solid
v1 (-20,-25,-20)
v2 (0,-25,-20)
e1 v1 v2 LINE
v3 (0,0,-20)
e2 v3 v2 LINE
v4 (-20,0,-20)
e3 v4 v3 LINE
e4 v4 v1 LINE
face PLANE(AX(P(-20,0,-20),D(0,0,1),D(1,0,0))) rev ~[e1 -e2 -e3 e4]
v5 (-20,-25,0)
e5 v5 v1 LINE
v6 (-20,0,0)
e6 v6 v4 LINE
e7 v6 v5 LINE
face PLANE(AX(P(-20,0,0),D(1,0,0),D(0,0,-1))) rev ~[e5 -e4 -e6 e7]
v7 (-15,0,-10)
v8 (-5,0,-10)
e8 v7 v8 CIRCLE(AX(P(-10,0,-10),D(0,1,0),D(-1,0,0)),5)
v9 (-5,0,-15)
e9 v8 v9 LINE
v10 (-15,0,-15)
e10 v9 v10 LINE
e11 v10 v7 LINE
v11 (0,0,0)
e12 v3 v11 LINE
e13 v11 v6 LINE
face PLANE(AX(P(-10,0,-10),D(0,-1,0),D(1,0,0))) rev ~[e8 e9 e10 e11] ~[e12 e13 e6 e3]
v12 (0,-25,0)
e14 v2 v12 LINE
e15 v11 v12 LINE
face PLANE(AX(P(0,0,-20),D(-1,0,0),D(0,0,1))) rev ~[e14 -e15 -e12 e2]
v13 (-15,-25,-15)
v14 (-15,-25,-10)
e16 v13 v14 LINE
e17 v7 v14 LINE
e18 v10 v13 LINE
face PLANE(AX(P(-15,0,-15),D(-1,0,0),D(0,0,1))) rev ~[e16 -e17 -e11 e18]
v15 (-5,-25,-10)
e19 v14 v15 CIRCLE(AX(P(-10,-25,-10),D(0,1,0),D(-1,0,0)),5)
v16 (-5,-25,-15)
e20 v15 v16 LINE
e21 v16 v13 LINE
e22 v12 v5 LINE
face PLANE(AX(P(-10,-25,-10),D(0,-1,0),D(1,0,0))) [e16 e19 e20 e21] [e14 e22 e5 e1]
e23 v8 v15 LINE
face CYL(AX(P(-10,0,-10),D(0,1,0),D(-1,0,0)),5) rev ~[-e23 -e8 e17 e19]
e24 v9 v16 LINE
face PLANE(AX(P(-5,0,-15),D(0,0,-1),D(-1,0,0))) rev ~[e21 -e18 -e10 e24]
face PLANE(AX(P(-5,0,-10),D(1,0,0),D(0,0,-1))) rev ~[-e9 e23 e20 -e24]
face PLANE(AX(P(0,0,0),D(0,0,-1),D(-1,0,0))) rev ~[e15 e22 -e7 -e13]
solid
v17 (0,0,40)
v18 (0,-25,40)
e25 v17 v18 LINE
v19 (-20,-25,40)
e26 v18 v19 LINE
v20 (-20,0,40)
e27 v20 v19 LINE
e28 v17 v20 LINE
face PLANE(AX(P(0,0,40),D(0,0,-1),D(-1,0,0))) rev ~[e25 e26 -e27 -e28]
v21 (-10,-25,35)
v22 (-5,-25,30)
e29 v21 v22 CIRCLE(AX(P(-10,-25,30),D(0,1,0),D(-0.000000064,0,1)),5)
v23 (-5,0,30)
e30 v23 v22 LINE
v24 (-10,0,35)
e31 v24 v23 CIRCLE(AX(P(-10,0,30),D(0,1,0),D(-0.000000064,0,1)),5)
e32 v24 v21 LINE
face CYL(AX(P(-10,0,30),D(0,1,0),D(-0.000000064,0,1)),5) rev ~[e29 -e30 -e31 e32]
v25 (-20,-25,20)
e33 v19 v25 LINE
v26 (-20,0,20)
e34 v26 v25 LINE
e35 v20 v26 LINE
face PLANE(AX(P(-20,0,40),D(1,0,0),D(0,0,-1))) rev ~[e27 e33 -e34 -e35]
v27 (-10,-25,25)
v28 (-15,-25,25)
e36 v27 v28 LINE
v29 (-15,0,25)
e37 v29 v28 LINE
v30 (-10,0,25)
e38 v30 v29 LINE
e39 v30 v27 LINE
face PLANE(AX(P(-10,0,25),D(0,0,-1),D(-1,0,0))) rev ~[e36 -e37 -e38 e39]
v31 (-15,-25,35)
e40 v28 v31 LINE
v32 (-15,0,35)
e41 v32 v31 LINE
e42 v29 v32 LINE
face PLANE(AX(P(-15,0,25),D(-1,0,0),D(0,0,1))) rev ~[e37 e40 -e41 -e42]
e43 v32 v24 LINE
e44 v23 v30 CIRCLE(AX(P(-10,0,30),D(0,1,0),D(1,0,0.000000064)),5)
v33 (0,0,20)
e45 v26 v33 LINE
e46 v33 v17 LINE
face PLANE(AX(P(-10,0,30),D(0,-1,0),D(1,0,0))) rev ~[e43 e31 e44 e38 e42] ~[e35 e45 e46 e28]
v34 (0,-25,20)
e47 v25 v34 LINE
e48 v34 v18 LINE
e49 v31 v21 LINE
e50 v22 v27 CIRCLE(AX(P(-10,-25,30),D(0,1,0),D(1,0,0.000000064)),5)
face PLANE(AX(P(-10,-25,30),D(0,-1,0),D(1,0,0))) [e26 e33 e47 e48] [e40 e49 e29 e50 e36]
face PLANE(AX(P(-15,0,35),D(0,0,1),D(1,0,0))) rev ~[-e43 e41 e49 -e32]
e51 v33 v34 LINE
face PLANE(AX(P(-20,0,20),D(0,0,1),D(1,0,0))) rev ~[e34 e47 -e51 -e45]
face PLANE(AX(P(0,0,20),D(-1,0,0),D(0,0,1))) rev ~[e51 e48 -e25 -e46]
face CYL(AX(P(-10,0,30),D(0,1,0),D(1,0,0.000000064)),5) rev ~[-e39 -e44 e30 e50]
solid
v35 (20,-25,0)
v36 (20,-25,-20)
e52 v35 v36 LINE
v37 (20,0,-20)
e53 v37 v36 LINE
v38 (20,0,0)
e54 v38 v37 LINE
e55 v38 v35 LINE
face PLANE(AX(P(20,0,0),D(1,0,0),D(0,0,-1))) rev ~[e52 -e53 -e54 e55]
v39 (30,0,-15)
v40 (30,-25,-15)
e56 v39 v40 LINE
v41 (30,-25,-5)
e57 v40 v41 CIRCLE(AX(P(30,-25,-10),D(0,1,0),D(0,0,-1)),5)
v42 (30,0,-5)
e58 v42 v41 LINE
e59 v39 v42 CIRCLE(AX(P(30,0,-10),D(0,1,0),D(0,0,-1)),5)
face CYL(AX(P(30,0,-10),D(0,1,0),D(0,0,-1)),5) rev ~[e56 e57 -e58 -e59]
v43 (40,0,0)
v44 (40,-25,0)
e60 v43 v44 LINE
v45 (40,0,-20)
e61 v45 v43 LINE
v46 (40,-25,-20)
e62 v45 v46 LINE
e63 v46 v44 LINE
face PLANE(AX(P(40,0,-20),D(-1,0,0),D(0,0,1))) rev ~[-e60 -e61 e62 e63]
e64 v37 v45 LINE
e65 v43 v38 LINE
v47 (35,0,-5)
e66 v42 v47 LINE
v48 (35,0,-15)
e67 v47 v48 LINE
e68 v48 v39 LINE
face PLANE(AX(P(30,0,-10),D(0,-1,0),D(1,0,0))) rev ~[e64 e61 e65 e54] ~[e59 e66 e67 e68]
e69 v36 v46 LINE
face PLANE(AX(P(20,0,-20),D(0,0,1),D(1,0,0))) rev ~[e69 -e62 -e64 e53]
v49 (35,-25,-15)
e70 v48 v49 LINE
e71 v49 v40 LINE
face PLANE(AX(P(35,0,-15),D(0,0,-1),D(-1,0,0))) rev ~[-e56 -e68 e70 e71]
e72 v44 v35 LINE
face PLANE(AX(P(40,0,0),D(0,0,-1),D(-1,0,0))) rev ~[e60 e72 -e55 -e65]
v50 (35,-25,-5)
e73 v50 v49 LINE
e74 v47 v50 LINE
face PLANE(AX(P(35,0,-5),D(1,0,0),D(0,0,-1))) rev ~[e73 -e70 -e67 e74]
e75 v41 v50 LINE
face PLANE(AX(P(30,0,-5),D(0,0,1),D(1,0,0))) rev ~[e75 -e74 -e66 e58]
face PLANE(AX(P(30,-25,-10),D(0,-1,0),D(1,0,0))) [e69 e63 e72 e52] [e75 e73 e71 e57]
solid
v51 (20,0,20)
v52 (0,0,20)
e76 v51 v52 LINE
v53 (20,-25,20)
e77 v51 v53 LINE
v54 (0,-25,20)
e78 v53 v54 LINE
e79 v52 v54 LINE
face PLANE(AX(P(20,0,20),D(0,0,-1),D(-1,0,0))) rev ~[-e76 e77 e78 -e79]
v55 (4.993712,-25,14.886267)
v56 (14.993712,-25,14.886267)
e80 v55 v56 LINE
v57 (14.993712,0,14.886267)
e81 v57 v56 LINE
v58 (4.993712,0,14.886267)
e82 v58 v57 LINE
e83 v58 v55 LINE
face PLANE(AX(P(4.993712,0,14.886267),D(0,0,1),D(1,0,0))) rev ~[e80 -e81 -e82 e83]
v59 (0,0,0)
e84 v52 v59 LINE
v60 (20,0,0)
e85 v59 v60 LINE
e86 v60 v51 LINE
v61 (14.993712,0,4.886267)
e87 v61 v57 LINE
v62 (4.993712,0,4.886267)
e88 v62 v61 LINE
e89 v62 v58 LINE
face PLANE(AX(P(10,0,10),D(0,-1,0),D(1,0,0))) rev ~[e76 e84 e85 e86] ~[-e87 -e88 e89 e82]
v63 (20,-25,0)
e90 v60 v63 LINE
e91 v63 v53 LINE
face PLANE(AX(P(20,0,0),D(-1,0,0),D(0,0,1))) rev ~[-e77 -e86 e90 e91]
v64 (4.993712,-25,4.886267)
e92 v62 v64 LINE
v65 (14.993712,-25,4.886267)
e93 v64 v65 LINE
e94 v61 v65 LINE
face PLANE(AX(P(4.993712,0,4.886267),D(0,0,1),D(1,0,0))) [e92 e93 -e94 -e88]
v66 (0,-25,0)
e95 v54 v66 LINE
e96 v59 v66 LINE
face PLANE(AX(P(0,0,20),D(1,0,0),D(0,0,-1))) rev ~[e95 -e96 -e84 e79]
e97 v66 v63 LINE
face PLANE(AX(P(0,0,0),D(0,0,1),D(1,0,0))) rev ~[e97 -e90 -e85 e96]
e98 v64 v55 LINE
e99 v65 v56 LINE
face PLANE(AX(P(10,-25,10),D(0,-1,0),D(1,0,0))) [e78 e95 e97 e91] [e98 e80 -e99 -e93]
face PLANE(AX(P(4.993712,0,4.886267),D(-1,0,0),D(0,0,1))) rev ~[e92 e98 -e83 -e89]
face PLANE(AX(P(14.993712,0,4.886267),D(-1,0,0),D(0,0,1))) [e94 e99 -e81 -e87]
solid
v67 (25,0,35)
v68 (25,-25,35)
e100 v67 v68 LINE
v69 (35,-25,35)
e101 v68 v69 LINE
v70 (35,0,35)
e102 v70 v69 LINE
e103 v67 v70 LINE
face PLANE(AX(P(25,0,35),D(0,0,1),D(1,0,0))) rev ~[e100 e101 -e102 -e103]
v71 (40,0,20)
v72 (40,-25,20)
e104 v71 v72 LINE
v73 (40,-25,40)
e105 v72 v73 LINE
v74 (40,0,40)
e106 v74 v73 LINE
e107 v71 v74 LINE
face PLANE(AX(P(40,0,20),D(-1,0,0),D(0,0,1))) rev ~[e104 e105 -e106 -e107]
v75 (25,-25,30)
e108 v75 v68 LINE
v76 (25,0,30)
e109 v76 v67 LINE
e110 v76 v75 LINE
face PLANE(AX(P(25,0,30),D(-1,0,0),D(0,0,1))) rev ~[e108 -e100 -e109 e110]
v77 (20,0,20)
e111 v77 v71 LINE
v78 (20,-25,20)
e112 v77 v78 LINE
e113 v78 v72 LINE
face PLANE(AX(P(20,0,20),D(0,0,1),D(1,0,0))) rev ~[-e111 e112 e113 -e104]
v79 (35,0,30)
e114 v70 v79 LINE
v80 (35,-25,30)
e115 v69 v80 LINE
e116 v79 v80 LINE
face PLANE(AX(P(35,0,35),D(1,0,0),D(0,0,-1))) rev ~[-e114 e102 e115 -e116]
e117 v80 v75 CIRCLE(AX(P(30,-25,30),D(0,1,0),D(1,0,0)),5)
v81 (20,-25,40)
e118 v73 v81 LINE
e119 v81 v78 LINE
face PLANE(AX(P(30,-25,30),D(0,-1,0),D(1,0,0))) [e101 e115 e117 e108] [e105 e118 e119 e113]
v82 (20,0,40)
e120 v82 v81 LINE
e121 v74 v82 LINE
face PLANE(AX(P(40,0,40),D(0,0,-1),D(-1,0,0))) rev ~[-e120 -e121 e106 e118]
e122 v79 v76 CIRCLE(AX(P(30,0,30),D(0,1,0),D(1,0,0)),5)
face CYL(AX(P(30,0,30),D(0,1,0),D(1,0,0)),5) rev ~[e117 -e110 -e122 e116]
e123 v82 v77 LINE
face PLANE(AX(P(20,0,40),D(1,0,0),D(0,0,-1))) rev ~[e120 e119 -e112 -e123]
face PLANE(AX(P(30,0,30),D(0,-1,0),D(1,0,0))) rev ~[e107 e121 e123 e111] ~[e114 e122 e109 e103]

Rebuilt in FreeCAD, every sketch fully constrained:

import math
import FreeCAD as App
import Part
import Sketcher


def add_polygon(sketch, points):
    """Adds a closed chain of lines whose ends are joined by coincident constraints."""
    first, n = sketch.GeometryCount, len(points)
    for a, b in zip(points, points[1:] + points[:1]):
        sketch.addGeometry(Part.LineSegment(App.Vector(*a, 0), App.Vector(*b, 0)), False)
    for i in range(n):
        sketch.addConstraint(Sketcher.Constraint("Coincident", first + i, 2, first + (i + 1) % n, 1))

doc = App.newDocument("Part")
body = doc.addObject("PartDesign::Body", "Body")
body.AllowCompound = True

# Sketch on XZ plane
sketch1 = body.newObject("Sketcher::SketchObject", "Sketch")
sketch1.AttachmentSupport = (doc.getObject("XZ_Plane"), [""])
sketch1.MapMode = "FlatFace"
add_polygon(sketch1, [(0, 0), (20, 0), (20, 20), (0, 20)])  # lines 0-3
add_polygon(sketch1, [(14.993712, 4.886267), (4.993712, 4.886267), (4.993712, 14.886267), (14.993712, 14.886267)])  # lines 4-7
add_polygon(sketch1, [(-20, 20), (0, 20), (0, 40), (-20, 40)])  # lines 8-11
sketch1.addGeometry(Part.LineSegment(App.Vector(-15, 25, 0), App.Vector(-15, 35, 0)), False)  # 12
sketch1.addGeometry(Part.LineSegment(App.Vector(-15, 35, 0), App.Vector(-10, 35, 0)), False)  # 13
sketch1.addGeometry(Part.ArcOfCircle(Part.Circle(App.Vector(-10, 30, 0), App.Vector(0, 0, 1), 5), math.radians(-0.000004), math.radians(90.000004)), False)  # 14
sketch1.addGeometry(Part.ArcOfCircle(Part.Circle(App.Vector(-10, 30, 0), App.Vector(0, 0, 1), 5), math.radians(-90.000004), math.radians(0.000004)), False)  # 15
sketch1.addGeometry(Part.LineSegment(App.Vector(-10, 25, 0), App.Vector(-15, 25, 0)), False)  # 16
add_polygon(sketch1, [(20, 20), (40, 20), (40, 40), (20, 40)])  # lines 17-20
sketch1.addGeometry(Part.LineSegment(App.Vector(25, 35, 0), App.Vector(35, 35, 0)), False)  # 21
sketch1.addGeometry(Part.LineSegment(App.Vector(35, 35, 0), App.Vector(35, 30, 0)), False)  # 22
sketch1.addGeometry(Part.ArcOfCircle(Part.Circle(App.Vector(30, 30, 0), App.Vector(0, 0, 1), 5), math.radians(180), math.radians(360)), False)  # 23
sketch1.addGeometry(Part.LineSegment(App.Vector(25, 30, 0), App.Vector(25, 35, 0)), False)  # 24
add_polygon(sketch1, [(40, 0), (20, 0), (20, -20), (40, -20)])  # lines 25-28
sketch1.addGeometry(Part.LineSegment(App.Vector(35, -15, 0), App.Vector(30, -15, 0)), False)  # 29
sketch1.addGeometry(Part.ArcOfCircle(Part.Circle(App.Vector(30, -10, 0), App.Vector(0, 0, 1), 5), math.radians(90), math.radians(270)), False)  # 30
sketch1.addGeometry(Part.LineSegment(App.Vector(30, -5, 0), App.Vector(35, -5, 0)), False)  # 31
sketch1.addGeometry(Part.LineSegment(App.Vector(35, -5, 0), App.Vector(35, -15, 0)), False)  # 32
add_polygon(sketch1, [(0, 0), (-20, 0), (-20, -20), (0, -20)])  # lines 33-36
sketch1.addGeometry(Part.LineSegment(App.Vector(-5, -15, 0), App.Vector(-15, -15, 0)), False)  # 37
sketch1.addGeometry(Part.LineSegment(App.Vector(-15, -15, 0), App.Vector(-15, -10, 0)), False)  # 38
sketch1.addGeometry(Part.ArcOfCircle(Part.Circle(App.Vector(-10, -10, 0), App.Vector(0, 0, 1), 5), math.radians(0), math.radians(180)), False)  # 39
sketch1.addGeometry(Part.LineSegment(App.Vector(-5, -10, 0), App.Vector(-5, -15, 0)), False)  # 40
sketch1.addConstraint(Sketcher.Constraint("Coincident", 12, 2, 13, 1))
sketch1.addConstraint(Sketcher.Constraint("Tangent", 13, 2, 14, 2))
sketch1.addConstraint(Sketcher.Constraint("Tangent", 14, 1, 15, 2))
sketch1.addConstraint(Sketcher.Constraint("Tangent", 15, 1, 16, 1))
sketch1.addConstraint(Sketcher.Constraint("Coincident", 16, 2, 12, 1))
sketch1.addConstraint(Sketcher.Constraint("Coincident", 21, 2, 22, 1))
sketch1.addConstraint(Sketcher.Constraint("Tangent", 22, 2, 23, 2))
sketch1.addConstraint(Sketcher.Constraint("Tangent", 23, 1, 24, 1))
sketch1.addConstraint(Sketcher.Constraint("Coincident", 24, 2, 21, 1))
sketch1.addConstraint(Sketcher.Constraint("Tangent", 29, 2, 30, 2))
sketch1.addConstraint(Sketcher.Constraint("Tangent", 30, 1, 31, 1))
sketch1.addConstraint(Sketcher.Constraint("Coincident", 31, 2, 32, 1))
sketch1.addConstraint(Sketcher.Constraint("Coincident", 32, 2, 29, 1))
sketch1.addConstraint(Sketcher.Constraint("Coincident", 37, 2, 38, 1))
sketch1.addConstraint(Sketcher.Constraint("Tangent", 38, 2, 39, 2))
sketch1.addConstraint(Sketcher.Constraint("Tangent", 39, 1, 40, 1))
sketch1.addConstraint(Sketcher.Constraint("Coincident", 40, 2, 37, 1))
sketch1.addConstraint(Sketcher.Constraint("Horizontal", 0))
sketch1.addConstraint(Sketcher.Constraint("Vertical", 1))
sketch1.addConstraint(Sketcher.Constraint("Horizontal", 2))
sketch1.addConstraint(Sketcher.Constraint("Vertical", 3))
sketch1.addConstraint(Sketcher.Constraint("Horizontal", 4))
sketch1.addConstraint(Sketcher.Constraint("Vertical", 5))
sketch1.addConstraint(Sketcher.Constraint("Horizontal", 6))
sketch1.addConstraint(Sketcher.Constraint("Vertical", 7))
sketch1.addConstraint(Sketcher.Constraint("Horizontal", 8))
sketch1.addConstraint(Sketcher.Constraint("Vertical", 9))
sketch1.addConstraint(Sketcher.Constraint("Horizontal", 10))
sketch1.addConstraint(Sketcher.Constraint("Vertical", 11))
sketch1.addConstraint(Sketcher.Constraint("Vertical", 12))
sketch1.addConstraint(Sketcher.Constraint("Horizontal", 13))
sketch1.addConstraint(Sketcher.Constraint("Horizontal", 16))
sketch1.addConstraint(Sketcher.Constraint("Horizontal", 17))
sketch1.addConstraint(Sketcher.Constraint("Vertical", 18))
sketch1.addConstraint(Sketcher.Constraint("Horizontal", 19))
sketch1.addConstraint(Sketcher.Constraint("Vertical", 20))
sketch1.addConstraint(Sketcher.Constraint("Horizontal", 21))
sketch1.addConstraint(Sketcher.Constraint("Vertical", 22))
sketch1.addConstraint(Sketcher.Constraint("Vertical", 24))
sketch1.addConstraint(Sketcher.Constraint("Horizontal", 25))
sketch1.addConstraint(Sketcher.Constraint("Vertical", 26))
sketch1.addConstraint(Sketcher.Constraint("Horizontal", 27))
sketch1.addConstraint(Sketcher.Constraint("Vertical", 28))
sketch1.addConstraint(Sketcher.Constraint("Horizontal", 29))
sketch1.addConstraint(Sketcher.Constraint("Horizontal", 31))
sketch1.addConstraint(Sketcher.Constraint("Vertical", 32))
sketch1.addConstraint(Sketcher.Constraint("Horizontal", 33))
sketch1.addConstraint(Sketcher.Constraint("Vertical", 34))
sketch1.addConstraint(Sketcher.Constraint("Horizontal", 35))
sketch1.addConstraint(Sketcher.Constraint("Vertical", 36))
sketch1.addConstraint(Sketcher.Constraint("Horizontal", 37))
sketch1.addConstraint(Sketcher.Constraint("Vertical", 38))
sketch1.addConstraint(Sketcher.Constraint("Vertical", 40))
sketch1.addConstraint(Sketcher.Constraint("Coincident", 3, 2, -1, 1))
sketch1.addConstraint(Sketcher.Constraint("Coincident", 36, 2, -1, 1))
sketch1.addConstraint(Sketcher.Constraint("Coincident", 8, 2, 2, 2))
sketch1.addConstraint(Sketcher.Constraint("Coincident", 20, 2, 1, 2))
sketch1.addConstraint(Sketcher.Constraint("Coincident", 25, 2, 0, 2))
sketch1.addConstraint(Sketcher.Constraint("Equal", 14, 15))
sketch1.addConstraint(Sketcher.Constraint("Equal", 15, 23))
sketch1.addConstraint(Sketcher.Constraint("Equal", 23, 30))
sketch1.addConstraint(Sketcher.Constraint("Equal", 30, 39))
sketch1.addConstraint(Sketcher.Constraint("Symmetric", 11, 2, 26, 2, -1, 1))
sketch1.addConstraint(Sketcher.Constraint("Symmetric", 1, 2, 34, 2, -1, 1))
sketch1.addConstraint(Sketcher.Constraint("Horizontal", 15, 3, 23, 3))
sketch1.addConstraint(Sketcher.Constraint("Horizontal", 30, 3, 39, 3))
sketch1.addConstraint(Sketcher.Constraint("Horizontal", 23, 3, 14, 1))
sketch1.addConstraint(Sketcher.Constraint("Horizontal", 10, 2, 18, 2))
sketch1.addConstraint(Sketcher.Constraint("Horizontal", 13, 2, 21, 2))
sketch1.addConstraint(Sketcher.Constraint("Horizontal", 32, 2, 37, 2))
sketch1.addConstraint(Sketcher.Constraint("Vertical", 23, 3, 30, 3))
sketch1.addConstraint(Sketcher.Constraint("Vertical", 15, 3, 39, 3))
sketch1.addConstraint(Sketcher.Constraint("Vertical", 18, 2, 27, 2))
sketch1.addConstraint(Sketcher.Constraint("Vertical", 22, 2, 31, 2))
sketch1.addConstraint(Sketcher.Constraint("Vertical", 16, 2, 37, 2))
sketch1.addConstraint(Sketcher.Constraint("Equal", 10, 17))
sketch1.addConstraint(Sketcher.Constraint("Equal", 6, 21))
sketch1.addConstraint(Sketcher.Constraint("Equal", 35, 1))
sketch1.addConstraint(Sketcher.Constraint("Equal", 37, 5))
sketch1.addConstraint(Sketcher.Constraint("Equal", 3, 9))
sketch1.addConstraint(Sketcher.Constraint("Radius", 14, 5.0))
sketch1.addConstraint(Sketcher.Constraint("DistanceX", 0, 1, 0, 2, 20.0))
sketch1.addConstraint(Sketcher.Constraint("DistanceX", 14, 3, -1, 1, 10.0))
sketch1.addConstraint(Sketcher.Constraint("DistanceY", -1, 1, 14, 3, 30.0))
sketch1.addConstraint(Sketcher.Constraint("DistanceX", -1, 1, 23, 3, 30.0))
sketch1.addConstraint(Sketcher.Constraint("DistanceY", 30, 3, -1, 1, 10.0))
sketch1.addConstraint(Sketcher.Constraint("DistanceX", -1, 1, 4, 2, 4.993712))
sketch1.addConstraint(Sketcher.Constraint("DistanceY", -1, 1, 4, 2, 4.886267))
pad1 = body.newObject("PartDesign::Pad", "Pad")
pad1.Profile = sketch1
pad1.Length = 25

doc.recompute()
